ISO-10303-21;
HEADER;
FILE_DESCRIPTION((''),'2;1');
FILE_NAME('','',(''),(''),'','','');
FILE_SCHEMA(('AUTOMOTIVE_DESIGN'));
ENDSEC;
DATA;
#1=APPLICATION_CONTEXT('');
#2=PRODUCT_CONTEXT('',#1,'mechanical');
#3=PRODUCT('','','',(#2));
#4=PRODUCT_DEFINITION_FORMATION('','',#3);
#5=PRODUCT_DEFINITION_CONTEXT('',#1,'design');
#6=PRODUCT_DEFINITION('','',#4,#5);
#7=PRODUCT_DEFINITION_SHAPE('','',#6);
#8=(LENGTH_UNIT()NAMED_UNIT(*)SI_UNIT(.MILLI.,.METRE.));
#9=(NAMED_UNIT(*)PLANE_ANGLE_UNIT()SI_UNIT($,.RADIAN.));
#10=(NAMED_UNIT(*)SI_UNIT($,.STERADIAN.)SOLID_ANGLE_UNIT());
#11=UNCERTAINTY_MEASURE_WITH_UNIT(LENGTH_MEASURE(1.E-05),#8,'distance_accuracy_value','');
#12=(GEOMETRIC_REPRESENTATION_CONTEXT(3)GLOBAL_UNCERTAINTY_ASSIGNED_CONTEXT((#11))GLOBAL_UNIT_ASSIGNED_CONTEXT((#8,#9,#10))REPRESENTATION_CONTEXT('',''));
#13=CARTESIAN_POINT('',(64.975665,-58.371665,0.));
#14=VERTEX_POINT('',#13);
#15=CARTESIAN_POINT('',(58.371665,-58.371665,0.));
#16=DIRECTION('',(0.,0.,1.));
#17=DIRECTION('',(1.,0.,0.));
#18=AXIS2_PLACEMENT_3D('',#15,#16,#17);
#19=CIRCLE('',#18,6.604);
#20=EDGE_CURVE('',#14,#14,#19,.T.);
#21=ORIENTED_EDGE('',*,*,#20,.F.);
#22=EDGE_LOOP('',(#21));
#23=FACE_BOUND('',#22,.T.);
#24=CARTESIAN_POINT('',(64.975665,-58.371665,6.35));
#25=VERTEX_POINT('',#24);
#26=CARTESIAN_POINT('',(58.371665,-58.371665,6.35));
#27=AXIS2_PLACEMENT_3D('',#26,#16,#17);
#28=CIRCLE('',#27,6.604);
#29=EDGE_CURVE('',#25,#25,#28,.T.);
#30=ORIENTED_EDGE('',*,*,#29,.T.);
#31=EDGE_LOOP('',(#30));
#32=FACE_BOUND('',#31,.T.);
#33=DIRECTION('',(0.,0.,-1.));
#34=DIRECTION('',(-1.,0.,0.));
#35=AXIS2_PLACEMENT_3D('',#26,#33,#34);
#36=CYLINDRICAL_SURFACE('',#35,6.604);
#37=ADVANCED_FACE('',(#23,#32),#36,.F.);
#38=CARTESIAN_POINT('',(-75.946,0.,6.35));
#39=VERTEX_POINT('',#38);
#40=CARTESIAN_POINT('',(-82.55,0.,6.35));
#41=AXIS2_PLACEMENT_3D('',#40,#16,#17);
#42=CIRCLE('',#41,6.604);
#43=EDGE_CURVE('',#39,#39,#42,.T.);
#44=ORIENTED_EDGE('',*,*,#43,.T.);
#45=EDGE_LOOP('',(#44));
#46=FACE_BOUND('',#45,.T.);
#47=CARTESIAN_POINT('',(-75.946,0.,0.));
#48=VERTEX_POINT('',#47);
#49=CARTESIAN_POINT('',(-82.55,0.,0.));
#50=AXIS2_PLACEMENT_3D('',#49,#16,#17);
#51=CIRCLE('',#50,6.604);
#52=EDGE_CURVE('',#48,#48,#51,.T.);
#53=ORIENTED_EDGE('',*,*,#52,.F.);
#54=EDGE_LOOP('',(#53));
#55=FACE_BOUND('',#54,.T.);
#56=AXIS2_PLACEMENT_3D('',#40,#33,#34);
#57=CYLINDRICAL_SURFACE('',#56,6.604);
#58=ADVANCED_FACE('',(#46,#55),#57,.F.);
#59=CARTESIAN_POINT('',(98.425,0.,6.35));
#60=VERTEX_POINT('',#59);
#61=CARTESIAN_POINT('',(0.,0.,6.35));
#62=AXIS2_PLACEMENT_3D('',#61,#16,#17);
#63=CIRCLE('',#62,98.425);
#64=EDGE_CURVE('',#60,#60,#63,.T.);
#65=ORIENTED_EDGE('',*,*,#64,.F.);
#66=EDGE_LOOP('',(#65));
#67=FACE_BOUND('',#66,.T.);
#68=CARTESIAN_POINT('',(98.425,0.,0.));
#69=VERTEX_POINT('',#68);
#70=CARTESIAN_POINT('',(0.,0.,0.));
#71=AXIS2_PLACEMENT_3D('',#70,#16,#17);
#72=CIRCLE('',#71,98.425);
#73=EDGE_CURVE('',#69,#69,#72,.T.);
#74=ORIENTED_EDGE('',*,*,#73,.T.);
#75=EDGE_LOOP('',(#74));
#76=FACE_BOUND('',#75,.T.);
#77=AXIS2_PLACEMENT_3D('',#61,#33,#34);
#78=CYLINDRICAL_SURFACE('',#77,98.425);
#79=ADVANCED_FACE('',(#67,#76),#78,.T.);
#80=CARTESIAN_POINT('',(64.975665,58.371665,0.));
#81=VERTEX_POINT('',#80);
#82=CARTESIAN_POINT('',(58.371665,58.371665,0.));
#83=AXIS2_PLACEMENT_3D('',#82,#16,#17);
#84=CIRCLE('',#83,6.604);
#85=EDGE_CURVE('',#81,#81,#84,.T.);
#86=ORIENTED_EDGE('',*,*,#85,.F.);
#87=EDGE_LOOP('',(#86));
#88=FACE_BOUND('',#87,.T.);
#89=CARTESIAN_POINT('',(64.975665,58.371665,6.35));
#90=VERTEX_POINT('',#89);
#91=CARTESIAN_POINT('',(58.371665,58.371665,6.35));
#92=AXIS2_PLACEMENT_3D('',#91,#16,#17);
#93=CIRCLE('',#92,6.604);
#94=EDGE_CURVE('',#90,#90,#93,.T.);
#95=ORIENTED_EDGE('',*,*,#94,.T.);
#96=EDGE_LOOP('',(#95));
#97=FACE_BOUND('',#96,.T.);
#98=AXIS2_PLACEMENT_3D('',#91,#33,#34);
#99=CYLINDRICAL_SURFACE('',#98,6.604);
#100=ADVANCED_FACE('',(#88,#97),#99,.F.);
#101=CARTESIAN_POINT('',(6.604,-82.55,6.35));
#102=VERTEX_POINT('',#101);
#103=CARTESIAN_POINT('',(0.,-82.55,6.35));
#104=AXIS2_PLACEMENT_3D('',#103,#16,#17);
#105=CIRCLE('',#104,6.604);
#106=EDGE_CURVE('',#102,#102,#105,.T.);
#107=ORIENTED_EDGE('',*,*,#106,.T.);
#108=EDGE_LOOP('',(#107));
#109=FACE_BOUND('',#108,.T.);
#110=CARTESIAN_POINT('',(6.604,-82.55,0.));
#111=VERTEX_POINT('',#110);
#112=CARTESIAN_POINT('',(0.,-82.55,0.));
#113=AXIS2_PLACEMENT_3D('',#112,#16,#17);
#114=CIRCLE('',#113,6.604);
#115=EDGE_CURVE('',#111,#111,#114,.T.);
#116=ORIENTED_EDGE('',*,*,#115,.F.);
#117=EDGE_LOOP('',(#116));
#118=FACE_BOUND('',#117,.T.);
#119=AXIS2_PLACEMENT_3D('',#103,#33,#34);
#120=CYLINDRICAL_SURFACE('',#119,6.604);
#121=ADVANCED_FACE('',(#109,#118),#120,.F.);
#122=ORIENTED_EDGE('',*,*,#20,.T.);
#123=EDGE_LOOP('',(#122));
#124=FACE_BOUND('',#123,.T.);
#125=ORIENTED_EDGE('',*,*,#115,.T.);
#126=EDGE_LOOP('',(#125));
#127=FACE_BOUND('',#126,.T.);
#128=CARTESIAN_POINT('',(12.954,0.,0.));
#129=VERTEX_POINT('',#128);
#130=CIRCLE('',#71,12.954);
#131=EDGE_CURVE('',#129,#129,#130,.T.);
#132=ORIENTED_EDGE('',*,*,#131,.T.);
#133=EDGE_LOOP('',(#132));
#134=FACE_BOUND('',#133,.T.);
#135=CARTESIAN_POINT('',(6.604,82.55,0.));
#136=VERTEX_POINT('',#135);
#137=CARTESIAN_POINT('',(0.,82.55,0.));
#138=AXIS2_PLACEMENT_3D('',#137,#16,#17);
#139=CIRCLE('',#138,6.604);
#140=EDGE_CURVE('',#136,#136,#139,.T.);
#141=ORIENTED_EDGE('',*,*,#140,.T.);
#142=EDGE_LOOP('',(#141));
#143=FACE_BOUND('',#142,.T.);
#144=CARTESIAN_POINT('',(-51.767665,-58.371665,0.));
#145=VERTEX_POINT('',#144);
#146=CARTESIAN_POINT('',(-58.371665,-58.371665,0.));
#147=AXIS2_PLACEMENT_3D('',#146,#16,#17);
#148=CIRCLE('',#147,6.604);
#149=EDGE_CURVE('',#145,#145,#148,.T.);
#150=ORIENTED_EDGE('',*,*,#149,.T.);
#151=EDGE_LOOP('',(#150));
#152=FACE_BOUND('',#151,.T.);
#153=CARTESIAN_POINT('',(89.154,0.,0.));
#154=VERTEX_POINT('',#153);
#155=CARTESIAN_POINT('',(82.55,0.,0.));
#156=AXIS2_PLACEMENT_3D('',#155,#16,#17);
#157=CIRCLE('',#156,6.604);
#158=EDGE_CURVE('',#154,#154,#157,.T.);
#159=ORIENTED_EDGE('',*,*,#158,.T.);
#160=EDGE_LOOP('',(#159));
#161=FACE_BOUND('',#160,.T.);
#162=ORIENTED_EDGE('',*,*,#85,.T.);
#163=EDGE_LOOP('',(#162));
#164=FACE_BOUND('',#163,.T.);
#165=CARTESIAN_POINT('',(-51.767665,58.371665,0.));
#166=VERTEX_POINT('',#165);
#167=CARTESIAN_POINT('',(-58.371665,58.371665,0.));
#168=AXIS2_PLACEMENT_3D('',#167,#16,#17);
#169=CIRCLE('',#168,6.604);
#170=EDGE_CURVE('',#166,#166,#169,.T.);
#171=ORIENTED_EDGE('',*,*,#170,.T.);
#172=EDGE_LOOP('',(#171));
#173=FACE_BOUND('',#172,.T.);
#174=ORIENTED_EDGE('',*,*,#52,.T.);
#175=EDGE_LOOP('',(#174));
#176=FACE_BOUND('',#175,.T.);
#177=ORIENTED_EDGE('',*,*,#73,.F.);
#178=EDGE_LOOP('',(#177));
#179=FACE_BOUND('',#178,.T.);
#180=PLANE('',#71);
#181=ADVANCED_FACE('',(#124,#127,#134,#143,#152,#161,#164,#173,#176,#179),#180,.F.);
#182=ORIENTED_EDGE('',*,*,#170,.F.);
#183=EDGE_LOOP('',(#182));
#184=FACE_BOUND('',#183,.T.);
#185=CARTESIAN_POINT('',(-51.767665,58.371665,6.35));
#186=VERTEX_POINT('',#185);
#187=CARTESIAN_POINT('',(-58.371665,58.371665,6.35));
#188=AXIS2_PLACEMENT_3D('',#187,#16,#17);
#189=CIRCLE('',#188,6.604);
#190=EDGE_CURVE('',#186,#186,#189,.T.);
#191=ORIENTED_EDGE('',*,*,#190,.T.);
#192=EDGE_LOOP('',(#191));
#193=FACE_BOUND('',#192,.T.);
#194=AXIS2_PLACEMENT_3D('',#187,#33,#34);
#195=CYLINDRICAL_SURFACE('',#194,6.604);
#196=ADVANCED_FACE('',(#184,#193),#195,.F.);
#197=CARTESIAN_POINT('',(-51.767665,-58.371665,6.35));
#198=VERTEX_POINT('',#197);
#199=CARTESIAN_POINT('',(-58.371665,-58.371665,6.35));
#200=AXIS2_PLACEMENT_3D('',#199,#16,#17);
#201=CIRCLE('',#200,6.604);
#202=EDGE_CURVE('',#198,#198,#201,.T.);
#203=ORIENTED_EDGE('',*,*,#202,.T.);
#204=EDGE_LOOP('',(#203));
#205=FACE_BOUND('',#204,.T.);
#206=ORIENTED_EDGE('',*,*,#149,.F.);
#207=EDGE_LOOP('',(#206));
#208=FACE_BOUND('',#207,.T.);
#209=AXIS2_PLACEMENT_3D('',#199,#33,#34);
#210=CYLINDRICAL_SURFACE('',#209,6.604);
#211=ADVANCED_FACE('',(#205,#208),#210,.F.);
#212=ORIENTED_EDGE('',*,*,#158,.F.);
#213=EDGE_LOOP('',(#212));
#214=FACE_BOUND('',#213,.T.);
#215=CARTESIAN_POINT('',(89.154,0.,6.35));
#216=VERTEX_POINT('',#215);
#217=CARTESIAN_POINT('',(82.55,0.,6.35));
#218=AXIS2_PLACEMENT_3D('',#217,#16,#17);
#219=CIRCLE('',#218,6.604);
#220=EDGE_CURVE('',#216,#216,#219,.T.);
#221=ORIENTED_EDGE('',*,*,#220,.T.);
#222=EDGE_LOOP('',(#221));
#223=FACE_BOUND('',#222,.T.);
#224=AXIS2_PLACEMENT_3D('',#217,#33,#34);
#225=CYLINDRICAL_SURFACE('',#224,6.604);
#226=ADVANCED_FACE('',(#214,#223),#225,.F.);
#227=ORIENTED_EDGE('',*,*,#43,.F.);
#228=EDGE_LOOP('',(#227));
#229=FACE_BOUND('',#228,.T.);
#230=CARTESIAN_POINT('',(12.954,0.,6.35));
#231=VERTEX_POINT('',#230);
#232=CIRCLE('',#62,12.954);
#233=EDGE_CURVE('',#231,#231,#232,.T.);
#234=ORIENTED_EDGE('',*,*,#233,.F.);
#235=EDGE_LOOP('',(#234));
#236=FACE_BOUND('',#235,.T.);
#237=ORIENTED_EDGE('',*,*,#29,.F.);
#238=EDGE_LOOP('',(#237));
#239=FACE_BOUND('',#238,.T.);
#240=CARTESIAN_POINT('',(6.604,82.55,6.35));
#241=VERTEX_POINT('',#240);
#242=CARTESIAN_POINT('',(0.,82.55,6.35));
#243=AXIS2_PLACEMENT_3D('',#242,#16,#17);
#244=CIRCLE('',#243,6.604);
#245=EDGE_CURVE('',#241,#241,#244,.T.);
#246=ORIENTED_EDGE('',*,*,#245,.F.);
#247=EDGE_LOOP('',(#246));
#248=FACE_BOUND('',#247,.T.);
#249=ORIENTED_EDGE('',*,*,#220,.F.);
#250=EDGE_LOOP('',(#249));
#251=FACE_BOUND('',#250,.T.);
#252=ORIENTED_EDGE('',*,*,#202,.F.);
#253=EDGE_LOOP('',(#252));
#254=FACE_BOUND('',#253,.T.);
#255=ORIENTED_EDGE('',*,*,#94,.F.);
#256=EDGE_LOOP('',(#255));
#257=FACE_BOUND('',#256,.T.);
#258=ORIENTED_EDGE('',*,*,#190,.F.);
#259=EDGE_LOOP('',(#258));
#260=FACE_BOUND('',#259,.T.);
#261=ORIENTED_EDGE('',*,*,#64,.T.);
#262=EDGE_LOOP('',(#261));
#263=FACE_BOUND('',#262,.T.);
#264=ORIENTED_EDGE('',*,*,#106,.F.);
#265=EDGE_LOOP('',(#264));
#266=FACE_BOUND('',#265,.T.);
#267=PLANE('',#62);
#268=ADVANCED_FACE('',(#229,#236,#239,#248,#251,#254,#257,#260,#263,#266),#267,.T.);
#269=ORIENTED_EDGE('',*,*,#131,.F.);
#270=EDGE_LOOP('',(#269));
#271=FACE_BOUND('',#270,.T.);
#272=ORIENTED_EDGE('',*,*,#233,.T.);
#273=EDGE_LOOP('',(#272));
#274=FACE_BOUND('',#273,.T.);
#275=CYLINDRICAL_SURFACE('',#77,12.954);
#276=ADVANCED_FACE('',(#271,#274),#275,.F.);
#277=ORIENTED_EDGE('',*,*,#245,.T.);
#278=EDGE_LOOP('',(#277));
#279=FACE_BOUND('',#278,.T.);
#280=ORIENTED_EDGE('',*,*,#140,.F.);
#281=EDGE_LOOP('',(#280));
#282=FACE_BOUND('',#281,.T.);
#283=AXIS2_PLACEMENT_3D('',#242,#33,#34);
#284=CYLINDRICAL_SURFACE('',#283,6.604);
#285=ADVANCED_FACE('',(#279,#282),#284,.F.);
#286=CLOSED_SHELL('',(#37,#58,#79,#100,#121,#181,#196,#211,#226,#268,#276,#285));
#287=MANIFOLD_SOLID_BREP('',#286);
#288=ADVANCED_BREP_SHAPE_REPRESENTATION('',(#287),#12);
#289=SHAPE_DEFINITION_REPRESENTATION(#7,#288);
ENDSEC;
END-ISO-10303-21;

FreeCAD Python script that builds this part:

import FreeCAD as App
import Part
import Sketcher
Q = App.Units.Quantity

doc = App.newDocument("Part")
body = doc.addObject("PartDesign::Body", "Body")

sketch1 = body.newObject("Sketcher::SketchObject", "Sketch")
sketch1.AttachmentSupport = (doc.getObject("XY_Plane"), [""])
sketch1.MapMode = "FlatFace"
sketch1.addGeometry(Part.Circle(App.Vector(0, 0, 0), App.Vector(0, 0, 1), 98.425), False)
sketch1.addGeometry(Part.Circle(App.Vector(-58.371665, -58.371665, 0), App.Vector(0, 0, 1), 6.604), False)
sketch1.addGeometry(Part.Circle(App.Vector(0, -82.55, 0), App.Vector(0, 0, 1), 6.604), False)
sketch1.addGeometry(Part.Circle(App.Vector(58.371665, -58.371665, 0), App.Vector(0, 0, 1), 6.604), False)
sketch1.addGeometry(Part.Circle(App.Vector(-82.55, 0, 0), App.Vector(0, 0, 1), 6.604), False)
sketch1.addGeometry(Part.Circle(App.Vector(-58.371665, 58.371665, 0), App.Vector(0, 0, 1), 6.604), False)
sketch1.addGeometry(Part.Circle(App.Vector(0, 0, 0), App.Vector(0, 0, 1), 12.954), False)
sketch1.addGeometry(Part.Circle(App.Vector(82.55, 0, 0), App.Vector(0, 0, 1), 6.604), False)
sketch1.addGeometry(Part.Circle(App.Vector(0, 82.55, 0), App.Vector(0, 0, 1), 6.604), False)
sketch1.addGeometry(Part.Circle(App.Vector(58.371665, 58.371665, 0), App.Vector(0, 0, 1), 6.604), False)
sketch1.addConstraint(Sketcher.Constraint("Coincident", 0, 3, -1, 1))
sketch1.addConstraint(Sketcher.Constraint("Coincident", 6, 3, -1, 1))
sketch1.addConstraint(Sketcher.Constraint("Equal", 1, 2))
sketch1.addConstraint(Sketcher.Constraint("Equal", 2, 3))
sketch1.addConstraint(Sketcher.Constraint("Equal", 3, 4))
sketch1.addConstraint(Sketcher.Constraint("Equal", 4, 5))
sketch1.addConstraint(Sketcher.Constraint("Equal", 5, 7))
sketch1.addConstraint(Sketcher.Constraint("Equal", 7, 8))
sketch1.addConstraint(Sketcher.Constraint("Equal", 8, 9))
sketch1.addConstraint(Sketcher.Constraint("Symmetric", 3, 3, 5, 3, -1, 1))
sketch1.addConstraint(Sketcher.Constraint("Symmetric", 4, 3, 7, 3, -1, 1))
sketch1.addConstraint(Sketcher.Constraint("Symmetric", 2, 3, 8, 3, -1, 1))
sketch1.addConstraint(Sketcher.Constraint("Symmetric", 1, 3, 9, 3, -1, 1))
sketch1.addConstraint(Sketcher.Constraint("Symmetric", 1, 3, 3, 3, -2))
sketch1.addConstraint(Sketcher.Constraint("PointOnObject", 2, 3, -2))
sketch1.addConstraint(Sketcher.Constraint("PointOnObject", 4, 3, -1))
sketch1.addConstraint(Sketcher.Constraint("Diameter", 0, Q("7.75 in")))
sketch1.addConstraint(Sketcher.Constraint("Diameter", 1, Q("0.52 in")))
sketch1.addConstraint(Sketcher.Constraint("Diameter", 6, Q("1.02 in")))
sketch1.addConstraint(Sketcher.Constraint("DistanceY", 2, 3, -1, 1, Q("3.25 in")))
sketch1.addConstraint(Sketcher.Constraint("DistanceX", 4, 3, -1, 1, Q("3.25 in")))
sketch1.addConstraint(Sketcher.Constraint("DistanceX", 1, 3, 3, 3, Q("116.74333 mm")))
sketch1.addConstraint(Sketcher.Constraint("DistanceY", 1, 3, 5, 3, Q("116.74333 mm")))
pad1 = body.newObject("PartDesign::Pad", "Pad")
pad1.Profile = sketch1
pad1.Length = Q("0.25 in")

doc.recompute()
